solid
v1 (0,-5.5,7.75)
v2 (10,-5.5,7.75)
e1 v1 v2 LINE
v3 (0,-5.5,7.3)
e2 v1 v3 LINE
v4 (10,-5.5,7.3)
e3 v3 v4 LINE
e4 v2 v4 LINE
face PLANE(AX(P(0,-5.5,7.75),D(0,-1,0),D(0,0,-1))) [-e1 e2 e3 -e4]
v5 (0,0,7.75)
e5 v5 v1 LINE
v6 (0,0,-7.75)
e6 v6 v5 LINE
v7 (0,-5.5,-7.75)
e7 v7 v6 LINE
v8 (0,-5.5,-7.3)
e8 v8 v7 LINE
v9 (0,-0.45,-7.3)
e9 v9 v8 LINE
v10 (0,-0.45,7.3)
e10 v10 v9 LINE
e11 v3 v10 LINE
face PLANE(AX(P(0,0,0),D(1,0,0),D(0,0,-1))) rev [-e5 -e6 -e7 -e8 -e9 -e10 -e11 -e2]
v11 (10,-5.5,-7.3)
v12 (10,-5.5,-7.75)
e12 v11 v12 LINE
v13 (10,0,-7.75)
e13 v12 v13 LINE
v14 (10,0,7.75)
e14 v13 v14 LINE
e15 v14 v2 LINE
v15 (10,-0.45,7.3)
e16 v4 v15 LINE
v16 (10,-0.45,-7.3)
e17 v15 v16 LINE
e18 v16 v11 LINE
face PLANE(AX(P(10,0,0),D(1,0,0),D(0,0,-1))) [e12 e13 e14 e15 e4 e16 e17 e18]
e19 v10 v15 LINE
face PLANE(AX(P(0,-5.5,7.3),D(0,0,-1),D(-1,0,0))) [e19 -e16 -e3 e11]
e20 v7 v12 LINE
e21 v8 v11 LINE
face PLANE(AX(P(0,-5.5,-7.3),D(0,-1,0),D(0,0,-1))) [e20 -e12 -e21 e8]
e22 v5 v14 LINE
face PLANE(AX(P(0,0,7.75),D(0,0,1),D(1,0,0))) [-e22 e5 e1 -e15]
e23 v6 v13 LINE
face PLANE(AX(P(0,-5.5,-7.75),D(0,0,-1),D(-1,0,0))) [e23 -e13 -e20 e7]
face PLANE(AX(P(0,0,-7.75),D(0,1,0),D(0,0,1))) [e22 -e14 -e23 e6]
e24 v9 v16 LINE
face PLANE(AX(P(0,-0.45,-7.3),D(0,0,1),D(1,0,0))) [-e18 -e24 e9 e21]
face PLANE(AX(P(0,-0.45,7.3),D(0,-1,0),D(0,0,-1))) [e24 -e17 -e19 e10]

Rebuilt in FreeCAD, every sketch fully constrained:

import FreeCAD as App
import Part
import Sketcher
Q = App.Units.Quantity

doc = App.newDocument("Part")
body = doc.addObject("PartDesign::Body", "Body")

sketch1 = doc.addObject("Sketcher::SketchObject", "Sketch")
body.addObject(sketch1)
sketch1.AttachmentSupport = (doc.YZ_Plane, [""])
sketch1.MapMode = "FlatFace"
sketch1.AttachmentOffset = App.Placement(App.Vector(0, 0, 10), App.Rotation())
sketch1.addGeometry(Part.LineSegment(App.Vector(0, -7.75, 0), App.Vector(0, 7.75, 0)), False)
sketch1.addGeometry(Part.LineSegment(App.Vector(0, 7.75, 0), App.Vector(-5.5, 7.75, 0)), False)
sketch1.addGeometry(Part.LineSegment(App.Vector(-5.5, 7.75, 0), App.Vector(-5.5, 7.3, 0)), False)
sketch1.addGeometry(Part.LineSegment(App.Vector(-5.5, 7.3, 0), App.Vector(-0.45, 7.3, 0)), False)
sketch1.addGeometry(Part.LineSegment(App.Vector(-0.45, 7.3, 0), App.Vector(-0.45, -7.3, 0)), False)
sketch1.addGeometry(Part.LineSegment(App.Vector(-0.45, -7.3, 0), App.Vector(-5.5, -7.3, 0)), False)
sketch1.addGeometry(Part.LineSegment(App.Vector(-5.5, -7.3, 0), App.Vector(-5.5, -7.75, 0)), False)
sketch1.addGeometry(Part.LineSegment(App.Vector(-5.5, -7.75, 0), App.Vector(0, -7.75, 0)), False)
sketch1.addConstraint(Sketcher.Constraint("Coincident", 0, 2, 1, 1))
sketch1.addConstraint(Sketcher.Constraint("Coincident", 1, 2, 2, 1))
sketch1.addConstraint(Sketcher.Constraint("Coincident", 2, 2, 3, 1))
sketch1.addConstraint(Sketcher.Constraint("Coincident", 3, 2, 4, 1))
sketch1.addConstraint(Sketcher.Constraint("Coincident", 4, 2, 5, 1))
sketch1.addConstraint(Sketcher.Constraint("Coincident", 5, 2, 6, 1))
sketch1.addConstraint(Sketcher.Constraint("Coincident", 6, 2, 7, 1))
sketch1.addConstraint(Sketcher.Constraint("Coincident", 7, 2, 0, 1))
sketch1.addConstraint(Sketcher.Constraint("Vertical", 0))
sketch1.addConstraint(Sketcher.Constraint("Horizontal", 1))
sketch1.addConstraint(Sketcher.Constraint("Vertical", 2))
sketch1.addConstraint(Sketcher.Constraint("Horizontal", 3))
sketch1.addConstraint(Sketcher.Constraint("Vertical", 4))
sketch1.addConstraint(Sketcher.Constraint("Horizontal", 5))
sketch1.addConstraint(Sketcher.Constraint("Vertical", 6))
sketch1.addConstraint(Sketcher.Constraint("Horizontal", 7))
sketch1.addConstraint(Sketcher.Constraint("Symmetric", 0, 2, 7, 2, -1, 1))
sketch1.addConstraint(Sketcher.Constraint("Symmetric", 2, 2, 5, 2, -1))
sketch1.addConstraint(Sketcher.Constraint("DistanceX", 1, 2, 1, 1, Q("5.5 mm")))
sketch1.addConstraint(Sketcher.Constraint("DistanceY", 0, 1, 0, 2, Q("15.5 mm")))
sketch1.addConstraint(Sketcher.Constraint("DistanceY", 4, 2, 4, 1, Q("14.6 mm")))
sketch1.addConstraint(Sketcher.Constraint("DistanceX", 3, 1, 3, 2, Q("5.05 mm")))
pad1 = doc.addObject("PartDesign::Pad", "Pad")
body.addObject(pad1)
pad1.Profile = sketch1
pad1.Length = 10
pad1.Reversed = True

doc.recompute()
